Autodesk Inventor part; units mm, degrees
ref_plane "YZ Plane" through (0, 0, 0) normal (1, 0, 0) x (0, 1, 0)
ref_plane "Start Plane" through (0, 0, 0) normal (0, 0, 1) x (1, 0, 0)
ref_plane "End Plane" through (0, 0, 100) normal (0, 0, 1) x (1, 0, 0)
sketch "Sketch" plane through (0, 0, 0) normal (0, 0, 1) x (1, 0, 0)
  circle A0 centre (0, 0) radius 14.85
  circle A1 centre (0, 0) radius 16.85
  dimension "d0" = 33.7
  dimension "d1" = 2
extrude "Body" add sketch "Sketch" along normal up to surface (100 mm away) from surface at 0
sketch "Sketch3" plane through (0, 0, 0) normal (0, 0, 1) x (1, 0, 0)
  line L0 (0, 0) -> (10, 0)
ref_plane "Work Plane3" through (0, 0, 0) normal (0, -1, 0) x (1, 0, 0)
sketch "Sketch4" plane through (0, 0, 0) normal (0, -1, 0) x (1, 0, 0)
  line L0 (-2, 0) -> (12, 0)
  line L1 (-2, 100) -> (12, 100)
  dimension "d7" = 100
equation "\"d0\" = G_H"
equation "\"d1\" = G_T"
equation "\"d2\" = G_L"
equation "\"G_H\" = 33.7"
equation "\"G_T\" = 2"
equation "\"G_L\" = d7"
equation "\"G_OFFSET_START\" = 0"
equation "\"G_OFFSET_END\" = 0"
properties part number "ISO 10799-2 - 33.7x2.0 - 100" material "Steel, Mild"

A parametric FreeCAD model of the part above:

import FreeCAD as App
import Part
import Sketcher

V = App.Vector
Q = App.Units.Quantity

doc = App.newDocument("Part")
params = doc.addObject("Spreadsheet::Sheet", "Params")
for row, (alias, value) in enumerate([
    ("sketch1_diameter", "33.7 mm"),
    ("sketch1_diameter2", "29.7 mm"),
    ("pad1_length", "100 mm"),
], start=1):
    params.set(f"A{row}", alias)
    params.set(f"B{row}", "=" + value)
    params.setAlias(f"B{row}", alias)

body = doc.addObject("PartDesign::Body", "Body")

sketch1 = body.newObject("Sketcher::SketchObject", "Sketch")
sketch1.AttachmentSupport = (doc.getObject("XY_Plane"), [""])
sketch1.MapMode = "FlatFace"
sketch1.addGeometry(Part.Circle(V(0, 0, 0), V(0, 0, 1), 16.85), False)
sketch1.addGeometry(Part.Circle(V(0, 0, 0), V(0, 0, 1), 14.85), False)
sketch1.addConstraint(Sketcher.Constraint("Coincident", 0, 3, -1, 1))
sketch1.addConstraint(Sketcher.Constraint("Coincident", 1, 3, -1, 1))
sketch1.addConstraint(Sketcher.Constraint("Diameter", 0, Q("33.7 mm")))
sketch1.addConstraint(Sketcher.Constraint("Diameter", 1, Q("29.7 mm")))
sketch1.setExpression("Constraints[2]", "Params.sketch1_diameter")
sketch1.setExpression("Constraints[3]", "Params.sketch1_diameter2")
pad1 = body.newObject("PartDesign::Pad", "Pad")
pad1.Profile = sketch1
pad1.setExpression("Length", "Params.pad1_length")

doc.recompute()
